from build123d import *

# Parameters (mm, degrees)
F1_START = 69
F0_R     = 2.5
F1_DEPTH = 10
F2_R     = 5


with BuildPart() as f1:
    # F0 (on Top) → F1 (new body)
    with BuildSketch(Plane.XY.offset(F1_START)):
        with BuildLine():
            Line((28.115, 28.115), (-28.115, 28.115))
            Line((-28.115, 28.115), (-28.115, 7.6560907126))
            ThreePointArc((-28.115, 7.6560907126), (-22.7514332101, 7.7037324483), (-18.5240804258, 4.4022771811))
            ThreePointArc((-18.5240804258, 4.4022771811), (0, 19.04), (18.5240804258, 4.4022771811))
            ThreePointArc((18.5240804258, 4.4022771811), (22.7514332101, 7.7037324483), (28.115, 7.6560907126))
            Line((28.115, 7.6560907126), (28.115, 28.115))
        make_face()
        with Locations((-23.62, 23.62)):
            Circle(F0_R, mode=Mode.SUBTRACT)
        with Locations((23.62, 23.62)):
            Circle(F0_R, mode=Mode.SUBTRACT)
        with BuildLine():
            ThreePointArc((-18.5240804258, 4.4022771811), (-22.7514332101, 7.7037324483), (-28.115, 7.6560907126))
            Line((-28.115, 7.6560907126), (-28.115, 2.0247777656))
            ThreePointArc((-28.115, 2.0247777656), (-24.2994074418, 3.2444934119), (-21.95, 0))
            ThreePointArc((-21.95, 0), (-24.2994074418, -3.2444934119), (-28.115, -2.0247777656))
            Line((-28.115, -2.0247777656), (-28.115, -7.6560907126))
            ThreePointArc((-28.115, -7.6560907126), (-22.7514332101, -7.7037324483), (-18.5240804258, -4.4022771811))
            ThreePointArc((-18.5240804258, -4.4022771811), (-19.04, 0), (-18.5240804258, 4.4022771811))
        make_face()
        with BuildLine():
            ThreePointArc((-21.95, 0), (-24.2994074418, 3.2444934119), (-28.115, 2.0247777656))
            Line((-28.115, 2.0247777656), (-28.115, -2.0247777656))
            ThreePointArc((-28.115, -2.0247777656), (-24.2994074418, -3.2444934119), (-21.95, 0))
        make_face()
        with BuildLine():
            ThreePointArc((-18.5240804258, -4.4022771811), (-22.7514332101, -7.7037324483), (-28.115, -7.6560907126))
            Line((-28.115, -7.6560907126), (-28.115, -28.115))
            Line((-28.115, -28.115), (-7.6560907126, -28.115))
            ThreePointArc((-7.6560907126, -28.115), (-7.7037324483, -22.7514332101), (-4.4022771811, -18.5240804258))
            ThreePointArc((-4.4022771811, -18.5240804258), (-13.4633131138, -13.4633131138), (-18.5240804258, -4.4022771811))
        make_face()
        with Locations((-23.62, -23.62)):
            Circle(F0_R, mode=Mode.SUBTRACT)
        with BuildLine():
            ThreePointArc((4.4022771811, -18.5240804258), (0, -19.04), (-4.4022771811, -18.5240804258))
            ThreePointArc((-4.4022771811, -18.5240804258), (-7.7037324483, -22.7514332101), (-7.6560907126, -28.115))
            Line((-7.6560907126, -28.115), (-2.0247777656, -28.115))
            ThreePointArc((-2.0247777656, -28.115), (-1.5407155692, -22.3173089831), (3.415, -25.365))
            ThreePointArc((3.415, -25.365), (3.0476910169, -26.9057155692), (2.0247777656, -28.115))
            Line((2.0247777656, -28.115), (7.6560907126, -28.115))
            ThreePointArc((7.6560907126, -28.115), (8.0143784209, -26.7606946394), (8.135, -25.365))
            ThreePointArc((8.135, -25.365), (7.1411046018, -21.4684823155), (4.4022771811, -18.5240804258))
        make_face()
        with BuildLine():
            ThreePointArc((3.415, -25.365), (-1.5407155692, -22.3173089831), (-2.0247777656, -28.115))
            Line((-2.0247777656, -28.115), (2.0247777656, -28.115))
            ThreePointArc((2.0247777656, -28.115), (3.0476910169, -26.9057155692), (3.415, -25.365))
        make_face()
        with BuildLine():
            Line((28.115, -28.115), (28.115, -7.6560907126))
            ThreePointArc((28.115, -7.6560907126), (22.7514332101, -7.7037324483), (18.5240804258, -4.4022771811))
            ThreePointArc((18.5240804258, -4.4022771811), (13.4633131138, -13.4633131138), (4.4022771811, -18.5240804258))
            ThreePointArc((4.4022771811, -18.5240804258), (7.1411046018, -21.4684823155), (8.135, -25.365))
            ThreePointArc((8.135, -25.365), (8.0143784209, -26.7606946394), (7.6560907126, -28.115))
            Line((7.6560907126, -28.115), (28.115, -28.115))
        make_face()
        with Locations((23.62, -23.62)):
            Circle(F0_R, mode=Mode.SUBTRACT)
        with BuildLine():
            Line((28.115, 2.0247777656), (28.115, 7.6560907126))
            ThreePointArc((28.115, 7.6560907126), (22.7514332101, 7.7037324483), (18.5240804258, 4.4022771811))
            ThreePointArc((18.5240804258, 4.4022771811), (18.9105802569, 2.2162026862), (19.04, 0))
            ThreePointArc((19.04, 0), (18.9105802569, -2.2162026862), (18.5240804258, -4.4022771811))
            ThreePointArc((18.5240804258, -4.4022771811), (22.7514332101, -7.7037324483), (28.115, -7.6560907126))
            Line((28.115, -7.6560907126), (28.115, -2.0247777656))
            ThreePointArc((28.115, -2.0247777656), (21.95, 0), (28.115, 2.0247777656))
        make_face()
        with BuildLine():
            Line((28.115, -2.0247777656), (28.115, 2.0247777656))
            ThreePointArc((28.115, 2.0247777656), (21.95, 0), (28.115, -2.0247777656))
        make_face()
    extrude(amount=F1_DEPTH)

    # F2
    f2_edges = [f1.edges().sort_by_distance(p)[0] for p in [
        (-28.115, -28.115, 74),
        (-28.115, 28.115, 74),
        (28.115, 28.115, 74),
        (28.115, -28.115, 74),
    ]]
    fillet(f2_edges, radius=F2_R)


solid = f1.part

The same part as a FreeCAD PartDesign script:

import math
import FreeCAD as App
import Part
import Sketcher
from FreeCAD import Vector


def edges_at(feature, points):
    """Names of the edges that pass closest to the given points."""
    edges = feature.Shape.Edges
    near = lambda p: min(range(len(edges)), key=lambda i: edges[i].distToShape(Part.Vertex(*p))[0])
    return sorted({f"Edge{near(p) + 1}" for p in points})

doc = App.newDocument("Part")
body = doc.addObject("PartDesign::Body", "Body")

# Sketch on XY plane
sketch1 = body.newObject("Sketcher::SketchObject", "Sketch")
sketch1.AttachmentSupport = (doc.getObject("XY_Plane"), [""])
sketch1.MapMode = "FlatFace"
sketch1.AttachmentOffset = App.Placement(Vector(0, 0, 69), App.Rotation())
sketch1.addGeometry([
    Part.LineSegment(Vector(28.1, 28.1, 0), Vector(-28.1, 28.1, 0)),  # 0
    Part.LineSegment(Vector(-28.1, 28.1, 0), Vector(-28.1, -28.1, 0)),  # 1
    Part.LineSegment(Vector(-28.1, -28.1, 0), Vector(28.1, -28.1, 0)),  # 2
    Part.LineSegment(Vector(28.1, -28.1, 0), Vector(28.1, 28.1, 0)),  # 3
    Part.ArcOfCircle(Part.Circle(Vector(0, 0, 0), Vector(0, 0, 1), 19), math.radians(13), math.radians(167)),  # 4
    Part.ArcOfCircle(Part.Circle(Vector(0, 0, 0), Vector(0, 0, 1), 19), math.radians(0), math.radians(13.37)),  # 5
    Part.ArcOfCircle(Part.Circle(Vector(0, 0, 0), Vector(0, 0, 1), 19), math.radians(-13.37), math.radians(0)),  # 6
    Part.ArcOfCircle(Part.Circle(Vector(0, 0, 0), Vector(0, 0, 1), 19), math.radians(-77), math.radians(-13)),  # 7
    Part.ArcOfCircle(Part.Circle(Vector(0, 0, 0), Vector(0, 0, 1), 19), math.radians(-103), math.radians(-77)),  # 8
    Part.ArcOfCircle(Part.Circle(Vector(0, 0, 0), Vector(0, 0, 1), 19), math.radians(-167), math.radians(-103)),  # 9
    Part.ArcOfCircle(Part.Circle(Vector(0, 0, 0), Vector(0, 0, 1), 19), math.radians(167), math.radians(193)),  # 10
    Part.Circle(Vector(-23.6, -23.6, 0), Vector(0, 0, 1), 2.5),  # 11
    Part.Circle(Vector(23.6, -23.6, 0), Vector(0, 0, 1), 2.5),  # 12
    Part.Circle(Vector(-23.6, 23.6, 0), Vector(0, 0, 1), 2.5),  # 13
    Part.Circle(Vector(23.6, 23.6, 0), Vector(0, 0, 1), 2.5),  # 14
], False)
sketch1.addConstraint([
    Sketcher.Constraint("Coincident", 0, 2, 1, 1),
    Sketcher.Constraint("Coincident", 1, 2, 2, 1),
    Sketcher.Constraint("Coincident", 2, 2, 3, 1),
    Sketcher.Constraint("Coincident", 3, 2, 0, 1),
    Sketcher.Constraint("Tangent", 4, 1, 5, 2),
    Sketcher.Constraint("Tangent", 5, 1, 6, 2),
    Sketcher.Constraint("Tangent", 6, 1, 7, 2),
    Sketcher.Constraint("Tangent", 7, 1, 8, 2),
    Sketcher.Constraint("Tangent", 8, 1, 9, 2),
    Sketcher.Constraint("Tangent", 9, 1, 10, 2),
    Sketcher.Constraint("Tangent", 10, 1, 4, 2),
    Sketcher.Constraint("Horizontal", 0),
    Sketcher.Constraint("Vertical", 1),
    Sketcher.Constraint("Horizontal", 2),
    Sketcher.Constraint("Vertical", 3),
    Sketcher.Constraint("Coincident", 4, 3, -1, 1),
    Sketcher.Constraint("Coincident", 6, 3, -1, 1),
    Sketcher.Constraint("Coincident", 8, 3, -1, 1),
    Sketcher.Constraint("Equal", 11, 12),
    Sketcher.Constraint("Equal", 12, 13),
    Sketcher.Constraint("Equal", 13, 14),
    Sketcher.Constraint("Symmetric", 12, 3, 13, 3, -1, 1),
    Sketcher.Constraint("Symmetric", 11, 3, 14, 3, -1, 1),
    Sketcher.Constraint("Symmetric", 0, 2, 2, 2, -1, 1),
    Sketcher.Constraint("Symmetric", 11, 3, 12, 3, -2),
    Sketcher.Constraint("PointOnObject", 5, 1, -1),
    Sketcher.Constraint("Horizontal", 7, 1, 8, 1),
    Sketcher.Constraint("Horizontal", 6, 1, 9, 1),
    Sketcher.Constraint("Horizontal", 4, 1, 10, 1),
    Sketcher.Constraint("Vertical", 4, 1, 6, 1),
    Sketcher.Constraint("Equal", 2, 1),
    Sketcher.Constraint("Diameter", 11, 5.0),
    Sketcher.Constraint("Radius", 4, 19.04),
    Sketcher.Constraint("DistanceX", 0, 2, 0, 1, 56.23),
    Sketcher.Constraint("DistanceX", 11, 3, -1, 1, 23.62),
    Sketcher.Constraint("DistanceY", 11, 3, -1, 1, 23.62),
    Sketcher.Constraint("DistanceX", -1, 1, 4, 1, 18.52408),
    Sketcher.Constraint("DistanceY", 7, 1, -1, 1, 18.52408),
])
pad1 = body.newObject("PartDesign::Pad", "Pad")
pad1.Profile = sketch1
pad1.Length = 10
doc.recompute()

fillet = body.newObject("PartDesign::Fillet", "Fillet")
fillet.Base = (pad1, edges_at(pad1, [
    (-28.115, -28.115, 74),
    (-28.115, 28.115, 74),
    (28.115, 28.115, 74),
    (28.115, -28.115, 74),
]))
fillet.Radius = 5

doc.recompute()
